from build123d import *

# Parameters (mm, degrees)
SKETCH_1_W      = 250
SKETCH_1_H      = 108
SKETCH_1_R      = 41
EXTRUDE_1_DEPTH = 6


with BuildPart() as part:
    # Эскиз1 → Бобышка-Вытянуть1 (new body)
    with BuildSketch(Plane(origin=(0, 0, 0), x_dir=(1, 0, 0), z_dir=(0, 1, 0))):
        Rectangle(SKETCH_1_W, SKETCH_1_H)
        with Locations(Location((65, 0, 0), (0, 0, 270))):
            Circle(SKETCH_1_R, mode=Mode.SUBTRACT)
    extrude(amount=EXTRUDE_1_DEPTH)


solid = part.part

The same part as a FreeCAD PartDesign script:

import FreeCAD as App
import Part
import Sketcher


def add_polygon(sketch, points):
    """Adds a closed chain of lines whose ends are joined by coincident constraints."""
    first, n = sketch.GeometryCount, len(points)
    for a, b in zip(points, points[1:] + points[:1]):
        sketch.addGeometry(Part.LineSegment(App.Vector(*a, 0), App.Vector(*b, 0)), False)
    for i in range(n):
        sketch.addConstraint(Sketcher.Constraint("Coincident", first + i, 2, first + (i + 1) % n, 1))

doc = App.newDocument("Part")
params = doc.addObject("Spreadsheet::Sheet", "Params")
for row, (alias, value) in enumerate([
    ("sketch1_diameter", "82 mm"),
    ("sketch1_width", "250 mm"),
    ("sketch1_height", "108 mm"),
    ("pad1_length", "6 mm"),
], start=1):
    params.set(f"A{row}", alias)
    params.set(f"B{row}", "=" + value)
    params.setAlias(f"B{row}", alias)

body = doc.addObject("PartDesign::Body", "Body")

sketch1 = doc.addObject("Sketcher::SketchObject", "Sketch")
body.addObject(sketch1)
sketch1.AttachmentSupport = (doc.XZ_Plane, [""])
sketch1.MapMode = "FlatFace"
add_polygon(sketch1, [(-125, -54), (-125, 54), (125, 54), (125, -54)])
sketch1.addGeometry(Part.Circle(App.Vector(65, 0, 0), App.Vector(0, 0, 1), 41), False)
sketch1.addConstraint([
    Sketcher.Constraint("Vertical", 0),
    Sketcher.Constraint("Horizontal", 1),
    Sketcher.Constraint("Vertical", 2),
    Sketcher.Constraint("Horizontal", 3),
    Sketcher.Constraint("Symmetric", 0, 2, 2, 2, -1, 1),
    Sketcher.Constraint("PointOnObject", 4, 3, -1),
    Sketcher.Constraint("Diameter", 4, 82.0),
    Sketcher.Constraint("DistanceX", 1, 1, 1, 2, 250.0),
    Sketcher.Constraint("DistanceY", 0, 1, 0, 2, 108.0),
    Sketcher.Constraint("DistanceX", -1, 1, 4, 3, 65.0),
])
sketch1.setExpression("Constraints[10]", "Params.sketch1_diameter")
sketch1.setExpression("Constraints[11]", "Params.sketch1_width")
sketch1.setExpression("Constraints[12]", "Params.sketch1_height")
pad1 = doc.addObject("PartDesign::Pad", "Pad")
body.addObject(pad1)
pad1.Profile = sketch1
pad1.setExpression("Length", "Params.pad1_length")
pad1.Reversed = True

doc.recompute()
